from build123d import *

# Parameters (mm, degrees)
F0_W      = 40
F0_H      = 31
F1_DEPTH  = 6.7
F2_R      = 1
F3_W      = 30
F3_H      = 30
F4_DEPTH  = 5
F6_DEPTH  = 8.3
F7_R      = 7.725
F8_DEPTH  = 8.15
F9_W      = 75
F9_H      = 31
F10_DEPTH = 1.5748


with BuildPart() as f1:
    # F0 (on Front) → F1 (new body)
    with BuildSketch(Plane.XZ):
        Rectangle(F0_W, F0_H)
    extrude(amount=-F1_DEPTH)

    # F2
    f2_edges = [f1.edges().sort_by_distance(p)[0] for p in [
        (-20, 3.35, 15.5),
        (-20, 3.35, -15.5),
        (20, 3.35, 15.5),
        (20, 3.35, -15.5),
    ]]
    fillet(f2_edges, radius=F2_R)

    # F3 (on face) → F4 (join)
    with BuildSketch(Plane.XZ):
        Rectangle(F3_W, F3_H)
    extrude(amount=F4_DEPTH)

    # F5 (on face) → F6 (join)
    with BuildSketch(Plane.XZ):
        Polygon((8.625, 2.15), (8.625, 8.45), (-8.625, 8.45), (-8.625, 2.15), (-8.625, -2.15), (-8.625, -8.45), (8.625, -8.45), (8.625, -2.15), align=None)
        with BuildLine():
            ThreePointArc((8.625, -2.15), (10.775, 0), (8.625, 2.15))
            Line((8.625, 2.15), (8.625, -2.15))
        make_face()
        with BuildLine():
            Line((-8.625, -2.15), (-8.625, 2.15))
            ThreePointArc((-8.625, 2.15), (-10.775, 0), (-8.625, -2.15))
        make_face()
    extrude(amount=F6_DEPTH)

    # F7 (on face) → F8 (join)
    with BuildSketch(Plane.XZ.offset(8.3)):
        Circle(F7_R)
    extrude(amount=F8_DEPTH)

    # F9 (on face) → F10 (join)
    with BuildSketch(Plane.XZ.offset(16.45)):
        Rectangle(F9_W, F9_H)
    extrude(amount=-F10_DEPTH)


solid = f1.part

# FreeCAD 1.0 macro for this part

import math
import FreeCAD as App
import Part
import Sketcher


def edges_at(feature, points):
    """Names of the edges that pass closest to the given points."""
    edges = feature.Shape.Edges
    near = lambda p: min(range(len(edges)), key=lambda i: edges[i].distToShape(Part.Vertex(*p))[0])
    return sorted({f"Edge{near(p) + 1}" for p in points})


def add_polygon(sketch, points):
    """Adds a closed chain of lines whose ends are joined by coincident constraints."""
    first, n = sketch.GeometryCount, len(points)
    for a, b in zip(points, points[1:] + points[:1]):
        sketch.addGeometry(Part.LineSegment(App.Vector(*a, 0), App.Vector(*b, 0)), False)
    for i in range(n):
        sketch.addConstraint(Sketcher.Constraint("Coincident", first + i, 2, first + (i + 1) % n, 1))

doc = App.newDocument("Part")
params = doc.addObject("Spreadsheet::Sheet", "Params")
for row, (alias, value) in enumerate([
    ("sketch1_width", "40 mm"),
    ("sketch1_height", "31 mm"),
    ("pad1_length", "6.7 mm"),
    ("fillet_radius", "1 mm"),
    ("sketch2_width", "30 mm"),
    ("pad2_length", "5 mm"),
    ("sketch3_radius", "2.15 mm"),
    ("sketch3_height", "6.3 mm"),
    ("sketch3_width", "17.25 mm"),
    ("pad3_length", "8.3 mm"),
    ("sketch4_diameter", "15.45 mm"),
    ("pad4_length", "8.15 mm"),
    ("sketch5_width", "75 mm"),
    ("sketch5_height", "31 mm"),
    ("pad5_length", "1.5748 mm"),
], start=1):
    params.set(f"A{row}", alias)
    params.set(f"B{row}", "=" + value)
    params.setAlias(f"B{row}", alias)

body = doc.addObject("PartDesign::Body", "Body")

# Sketch on XZ plane
sketch1 = doc.addObject("Sketcher::SketchObject", "Sketch")
body.addObject(sketch1)
sketch1.AttachmentSupport = (doc.XZ_Plane, [""])
sketch1.MapMode = "FlatFace"
add_polygon(sketch1, [(-20, 15.5), (-20, -15.5), (20, -15.5), (20, 15.5)])  # lines 0-3
sketch1.addConstraint([
    Sketcher.Constraint("Vertical", 0),
    Sketcher.Constraint("Horizontal", 1),
    Sketcher.Constraint("Vertical", 2),
    Sketcher.Constraint("Horizontal", 3),
    Sketcher.Constraint("Symmetric", 0, 2, 2, 2, -1, 1),
    Sketcher.Constraint("DistanceX", 1, 1, 1, 2, 40.0),
    Sketcher.Constraint("DistanceY", 0, 2, 0, 1, 31.0),
])
sketch1.setExpression("Constraints[9]", "Params.sketch1_width")
sketch1.setExpression("Constraints[10]", "Params.sketch1_height")
pad1 = doc.addObject("PartDesign::Pad", "Pad")
body.addObject(pad1)
pad1.Profile = sketch1
pad1.setExpression("Length", "Params.pad1_length")
pad1.Reversed = True
doc.recompute()

fillet = doc.addObject("PartDesign::Fillet", "Fillet")
body.addObject(fillet)
fillet.Base = (pad1, edges_at(pad1, [
    (-20, 3.35, 15.5),
    (-20, 3.35, -15.5),
    (20, 3.35, 15.5),
    (20, 3.35, -15.5),
]))
fillet.setExpression("Radius", "Params.fillet_radius")

# Sketch on XZ plane
sketch2 = doc.addObject("Sketcher::SketchObject", "Sketch001")
body.addObject(sketch2)
sketch2.AttachmentSupport = (doc.XZ_Plane, [""])
sketch2.MapMode = "FlatFace"
add_polygon(sketch2, [(-15, 15), (-15, -15), (15, -15), (15, 15)])  # lines 0-3
sketch2.addConstraint([
    Sketcher.Constraint("Vertical", 0),
    Sketcher.Constraint("Horizontal", 1),
    Sketcher.Constraint("Vertical", 2),
    Sketcher.Constraint("Horizontal", 3),
    Sketcher.Constraint("Symmetric", 0, 2, 2, 2, -1, 1),
    Sketcher.Constraint("Equal", 3, 0),
    Sketcher.Constraint("DistanceX", 1, 1, 1, 2, 30.0),
])
sketch2.setExpression("Constraints[10]", "Params.sketch2_width")
pad2 = doc.addObject("PartDesign::Pad", "Pad001")
body.addObject(pad2)
pad2.Profile = sketch2
pad2.setExpression("Length", "Params.pad2_length")

# Sketch on XZ plane
sketch3 = doc.addObject("Sketcher::SketchObject", "Sketch002")
body.addObject(sketch3)
sketch3.AttachmentSupport = (doc.XZ_Plane, [""])
sketch3.MapMode = "FlatFace"
sketch3.addGeometry([
    Part.LineSegment(App.Vector(8.625, 8.45, 0), App.Vector(-8.625, 8.45, 0)),  # 0
    Part.LineSegment(App.Vector(-8.625, 8.45, 0), App.Vector(-8.625, 2.15, 0)),  # 1
    Part.ArcOfCircle(Part.Circle(App.Vector(-8.625, 0, 0), App.Vector(0, 0, 1), 2.15), math.radians(90), math.radians(270)),  # 2
    Part.LineSegment(App.Vector(-8.625, -2.15, 0), App.Vector(-8.625, -8.45, 0)),  # 3
    Part.LineSegment(App.Vector(-8.625, -8.45, 0), App.Vector(8.625, -8.45, 0)),  # 4
    Part.LineSegment(App.Vector(8.625, -8.45, 0), App.Vector(8.625, -2.15, 0)),  # 5
    Part.ArcOfCircle(Part.Circle(App.Vector(8.625, 0, 0), App.Vector(0, 0, 1), 2.15), math.radians(-90), math.radians(90)),  # 6
    Part.LineSegment(App.Vector(8.625, 2.15, 0), App.Vector(8.625, 8.45, 0)),  # 7
], False)
sketch3.addConstraint([
    Sketcher.Constraint("Coincident", 0, 2, 1, 1),
    Sketcher.Constraint("Coincident", 1, 2, 2, 1),
    Sketcher.Constraint("Coincident", 2, 2, 3, 1),
    Sketcher.Constraint("Coincident", 3, 2, 4, 1),
    Sketcher.Constraint("Coincident", 4, 2, 5, 1),
    Sketcher.Constraint("Coincident", 5, 2, 6, 1),
    Sketcher.Constraint("Coincident", 6, 2, 7, 1),
    Sketcher.Constraint("Coincident", 7, 2, 0, 1),
    Sketcher.Constraint("Horizontal", 0),
    Sketcher.Constraint("Vertical", 1),
    Sketcher.Constraint("Vertical", 3),
    Sketcher.Constraint("Horizontal", 4),
    Sketcher.Constraint("Vertical", 5),
    Sketcher.Constraint("Vertical", 7),
    Sketcher.Constraint("Equal", 2, 6),
    Sketcher.Constraint("Symmetric", 2, 3, 6, 3, -1, 1),
    Sketcher.Constraint("Symmetric", 0, 2, 4, 2, -1, 1),
    Sketcher.Constraint("Symmetric", 2, 2, 5, 2, -2),
    Sketcher.Constraint("Vertical", 2, 3, 0, 2),
    Sketcher.Constraint("Vertical", 5, 2, 6, 2),
    Sketcher.Constraint("Radius", 2, 2.15),
    Sketcher.Constraint("DistanceY", 1, 2, 1, 1, 6.3),
    Sketcher.Constraint("DistanceX", 0, 2, 0, 1, 17.25),
])
sketch3.setExpression("Constraints[20]", "Params.sketch3_radius")
sketch3.setExpression("Constraints[21]", "Params.sketch3_height")
sketch3.setExpression("Constraints[22]", "Params.sketch3_width")
pad3 = doc.addObject("PartDesign::Pad", "Pad002")
body.addObject(pad3)
pad3.Profile = sketch3
pad3.setExpression("Length", "Params.pad3_length")

# Sketch on XZ plane
sketch4 = doc.addObject("Sketcher::SketchObject", "Sketch003")
body.addObject(sketch4)
sketch4.AttachmentSupport = (doc.XZ_Plane, [""])
sketch4.MapMode = "FlatFace"
sketch4.AttachmentOffset = App.Placement(App.Vector(0, 0, 8.3), App.Rotation())
sketch4.addGeometry(Part.Circle(App.Vector(0, 0, 0), App.Vector(0, 0, 1), 7.725), False)
sketch4.addConstraint([
    Sketcher.Constraint("Coincident", 0, 3, -1, 1),
    Sketcher.Constraint("Diameter", 0, 15.45),
])
sketch4.setExpression("Constraints[1]", "Params.sketch4_diameter")
pad4 = doc.addObject("PartDesign::Pad", "Pad003")
body.addObject(pad4)
pad4.Profile = sketch4
pad4.setExpression("Length", "Params.pad4_length")

# Sketch on XZ plane
sketch5 = doc.addObject("Sketcher::SketchObject", "Sketch004")
body.addObject(sketch5)
sketch5.AttachmentSupport = (doc.XZ_Plane, [""])
sketch5.MapMode = "FlatFace"
sketch5.AttachmentOffset = App.Placement(App.Vector(0, 0, 16.45), App.Rotation())
add_polygon(sketch5, [(-37.5, 15.5), (-37.5, -15.5), (37.5, -15.5), (37.5, 15.5)])  # lines 0-3
sketch5.addConstraint([
    Sketcher.Constraint("Vertical", 0),
    Sketcher.Constraint("Horizontal", 1),
    Sketcher.Constraint("Vertical", 2),
    Sketcher.Constraint("Horizontal", 3),
    Sketcher.Constraint("Symmetric", 0, 2, 2, 2, -1, 1),
    Sketcher.Constraint("DistanceX", 1, 1, 1, 2, 75.0),
    Sketcher.Constraint("DistanceY", 0, 2, 0, 1, 31.0),
])
sketch5.setExpression("Constraints[9]", "Params.sketch5_width")
sketch5.setExpression("Constraints[10]", "Params.sketch5_height")
pad5 = doc.addObject("PartDesign::Pad", "Pad004")
body.addObject(pad5)
pad5.Profile = sketch5
pad5.setExpression("Length", "Params.pad5_length")
pad5.Reversed = True

doc.recompute()
